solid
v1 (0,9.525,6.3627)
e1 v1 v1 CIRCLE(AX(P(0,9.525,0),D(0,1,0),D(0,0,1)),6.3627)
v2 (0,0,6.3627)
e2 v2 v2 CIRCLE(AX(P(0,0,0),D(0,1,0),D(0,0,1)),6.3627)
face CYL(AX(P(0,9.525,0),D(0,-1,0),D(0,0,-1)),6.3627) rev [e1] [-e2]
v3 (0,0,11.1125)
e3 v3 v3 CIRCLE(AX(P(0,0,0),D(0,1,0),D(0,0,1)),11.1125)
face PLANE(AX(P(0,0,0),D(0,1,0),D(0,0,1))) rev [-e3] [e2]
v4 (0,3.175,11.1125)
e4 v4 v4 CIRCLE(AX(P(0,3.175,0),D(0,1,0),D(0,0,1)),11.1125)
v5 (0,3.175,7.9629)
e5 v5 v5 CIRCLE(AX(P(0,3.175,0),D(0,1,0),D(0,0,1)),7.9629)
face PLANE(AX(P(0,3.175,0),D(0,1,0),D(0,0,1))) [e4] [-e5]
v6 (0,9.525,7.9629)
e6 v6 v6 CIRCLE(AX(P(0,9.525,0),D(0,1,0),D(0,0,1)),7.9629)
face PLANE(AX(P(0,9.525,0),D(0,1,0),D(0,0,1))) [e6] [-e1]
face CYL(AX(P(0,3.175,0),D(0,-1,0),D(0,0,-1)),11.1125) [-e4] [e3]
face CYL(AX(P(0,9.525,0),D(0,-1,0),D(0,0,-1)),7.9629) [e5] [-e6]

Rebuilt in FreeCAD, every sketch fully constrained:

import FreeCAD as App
import Part
import Sketcher
Q = App.Units.Quantity

doc = App.newDocument("Part")
params = doc.addObject("Spreadsheet::Sheet", "Params")
for row, (alias, value) in enumerate([
    ("sketch1_diameter", "0.627 in"),
    ("sketch1_diameter2", "0.501 in"),
    ("pad1_length", "0.375 in"),
    ("sketch2_diameter", "0.875 in"),
    ("sketch2_diameter2", "0.627 in"),
    ("pad2_length", "0.125 in"),
], start=1):
    params.set(f"A{row}", alias)
    params.set(f"B{row}", "=" + value)
    params.setAlias(f"B{row}", alias)

body = doc.addObject("PartDesign::Body", "Body")

# Sketch on XZ plane
sketch1 = body.newObject("Sketcher::SketchObject", "Sketch")
sketch1.AttachmentSupport = (doc.getObject("XZ_Plane"), [""])
sketch1.MapMode = "FlatFace"
sketch1.addGeometry([
    Part.Circle(App.Vector(0, 0, 0), App.Vector(0, 0, 1), 7.9629),
    Part.Circle(App.Vector(0, 0, 0), App.Vector(0, 0, 1), 6.3627),
], False)
sketch1.addConstraint([
    Sketcher.Constraint("Coincident", 0, 3, -1, 1),
    Sketcher.Constraint("Coincident", 1, 3, -1, 1),
    Sketcher.Constraint("Diameter", 0, Q("0.627 in")),
    Sketcher.Constraint("Diameter", 1, Q("0.501 in")),
])
sketch1.setExpression("Constraints[2]", "Params.sketch1_diameter")
sketch1.setExpression("Constraints[3]", "Params.sketch1_diameter2")
pad1 = body.newObject("PartDesign::Pad", "Pad")
pad1.Profile = sketch1
pad1.setExpression("Length", "Params.pad1_length")
pad1.Reversed = True

# Sketch on XZ plane
sketch2 = body.newObject("Sketcher::SketchObject", "Sketch001")
sketch2.AttachmentSupport = (doc.getObject("XZ_Plane"), [""])
sketch2.MapMode = "FlatFace"
sketch2.addGeometry([
    Part.Circle(App.Vector(0, 0, 0), App.Vector(0, 0, 1), 11.1125),
    Part.Circle(App.Vector(0, 0, 0), App.Vector(0, 0, 1), 7.9629),
], False)
sketch2.addConstraint([
    Sketcher.Constraint("Coincident", 0, 3, -1, 1),
    Sketcher.Constraint("Coincident", 1, 3, -1, 1),
    Sketcher.Constraint("Diameter", 0, Q("0.875 in")),
    Sketcher.Constraint("Diameter", 1, Q("0.627 in")),
])
sketch2.setExpression("Constraints[2]", "Params.sketch2_diameter")
sketch2.setExpression("Constraints[3]", "Params.sketch2_diameter2")
pad2 = body.newObject("PartDesign::Pad", "Pad001")
pad2.Profile = sketch2
pad2.setExpression("Length", "Params.pad2_length")
pad2.Reversed = True

doc.recompute()
